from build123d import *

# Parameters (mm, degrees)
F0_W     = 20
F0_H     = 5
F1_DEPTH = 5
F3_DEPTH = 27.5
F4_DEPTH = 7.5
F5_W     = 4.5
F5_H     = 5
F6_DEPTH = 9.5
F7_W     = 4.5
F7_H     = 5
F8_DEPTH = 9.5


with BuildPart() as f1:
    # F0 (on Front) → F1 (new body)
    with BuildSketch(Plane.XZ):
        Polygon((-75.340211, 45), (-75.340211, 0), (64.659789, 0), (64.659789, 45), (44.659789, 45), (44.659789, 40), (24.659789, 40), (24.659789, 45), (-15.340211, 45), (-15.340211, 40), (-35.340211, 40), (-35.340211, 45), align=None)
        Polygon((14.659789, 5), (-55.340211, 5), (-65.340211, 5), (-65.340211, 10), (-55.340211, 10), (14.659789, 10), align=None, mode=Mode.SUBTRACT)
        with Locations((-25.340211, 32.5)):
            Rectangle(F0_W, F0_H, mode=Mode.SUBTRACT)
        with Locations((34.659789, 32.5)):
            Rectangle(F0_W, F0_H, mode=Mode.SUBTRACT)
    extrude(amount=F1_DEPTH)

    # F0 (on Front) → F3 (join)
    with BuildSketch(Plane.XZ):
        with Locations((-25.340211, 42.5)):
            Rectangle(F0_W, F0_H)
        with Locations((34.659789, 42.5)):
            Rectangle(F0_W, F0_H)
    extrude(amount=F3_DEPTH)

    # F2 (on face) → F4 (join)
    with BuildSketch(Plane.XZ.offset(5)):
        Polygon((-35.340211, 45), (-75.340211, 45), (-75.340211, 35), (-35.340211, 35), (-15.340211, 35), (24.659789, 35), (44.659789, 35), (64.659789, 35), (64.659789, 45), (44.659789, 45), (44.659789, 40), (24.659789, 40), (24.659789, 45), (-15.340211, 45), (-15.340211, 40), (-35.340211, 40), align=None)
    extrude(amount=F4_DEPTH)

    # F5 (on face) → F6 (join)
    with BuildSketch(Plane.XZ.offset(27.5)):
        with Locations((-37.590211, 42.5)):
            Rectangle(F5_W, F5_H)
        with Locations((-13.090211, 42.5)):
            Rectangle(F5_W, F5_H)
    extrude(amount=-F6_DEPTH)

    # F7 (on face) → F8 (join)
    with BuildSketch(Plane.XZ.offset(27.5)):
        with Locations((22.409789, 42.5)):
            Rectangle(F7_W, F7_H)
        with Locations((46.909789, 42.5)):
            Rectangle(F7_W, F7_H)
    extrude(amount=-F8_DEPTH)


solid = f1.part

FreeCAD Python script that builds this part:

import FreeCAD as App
import Part
import Sketcher

V = App.Vector

doc = App.newDocument("Part")
body = doc.addObject("PartDesign::Body", "Body")

sketch1 = body.newObject("Sketcher::SketchObject", "Sketch")
sketch1.AttachmentSupport = (doc.getObject("XZ_Plane"), [""])
sketch1.MapMode = "FlatFace"
sketch1.addGeometry(Part.LineSegment(V(-75.340211, 45, 0), V(-75.340211, 0, 0)), False)
sketch1.addGeometry(Part.LineSegment(V(-75.340211, 0, 0), V(64.659789, 0, 0)), False)
sketch1.addGeometry(Part.LineSegment(V(64.659789, 0, 0), V(64.659789, 45, 0)), False)
sketch1.addGeometry(Part.LineSegment(V(64.659789, 45, 0), V(44.659789, 45, 0)), False)
sketch1.addGeometry(Part.LineSegment(V(44.659789, 45, 0), V(44.659789, 40, 0)), False)
sketch1.addGeometry(Part.LineSegment(V(44.659789, 40, 0), V(24.659789, 40, 0)), False)
sketch1.addGeometry(Part.LineSegment(V(24.659789, 40, 0), V(24.659789, 45, 0)), False)
sketch1.addGeometry(Part.LineSegment(V(24.659789, 45, 0), V(-15.340211, 45, 0)), False)
sketch1.addGeometry(Part.LineSegment(V(-15.340211, 45, 0), V(-15.340211, 40, 0)), False)
sketch1.addGeometry(Part.LineSegment(V(-15.340211, 40, 0), V(-35.340211, 40, 0)), False)
sketch1.addGeometry(Part.LineSegment(V(-35.340211, 40, 0), V(-35.340211, 45, 0)), False)
sketch1.addGeometry(Part.LineSegment(V(-35.340211, 45, 0), V(-75.340211, 45, 0)), False)
sketch1.addGeometry(Part.LineSegment(V(14.659789, 10, 0), V(14.659789, 5, 0)), False)
sketch1.addGeometry(Part.LineSegment(V(14.659789, 5, 0), V(-65.340211, 5, 0)), False)
sketch1.addGeometry(Part.LineSegment(V(-65.340211, 5, 0), V(-65.340211, 10, 0)), False)
sketch1.addGeometry(Part.LineSegment(V(-65.340211, 10, 0), V(14.659789, 10, 0)), False)
sketch1.addGeometry(Part.LineSegment(V(-15.340211, 30, 0), V(-35.340211, 30, 0)), False)
sketch1.addGeometry(Part.LineSegment(V(-35.340211, 30, 0), V(-35.340211, 35, 0)), False)
sketch1.addGeometry(Part.LineSegment(V(-35.340211, 35, 0), V(-15.340211, 35, 0)), False)
sketch1.addGeometry(Part.LineSegment(V(-15.340211, 35, 0), V(-15.340211, 30, 0)), False)
sketch1.addGeometry(Part.LineSegment(V(44.659789, 30, 0), V(24.659789, 30, 0)), False)
sketch1.addGeometry(Part.LineSegment(V(24.659789, 30, 0), V(24.659789, 35, 0)), False)
sketch1.addGeometry(Part.LineSegment(V(24.659789, 35, 0), V(44.659789, 35, 0)), False)
sketch1.addGeometry(Part.LineSegment(V(44.659789, 35, 0), V(44.659789, 30, 0)), False)
sketch1.addConstraint(Sketcher.Constraint("Coincident", 0, 2, 1, 1))
sketch1.addConstraint(Sketcher.Constraint("Coincident", 1, 2, 2, 1))
sketch1.addConstraint(Sketcher.Constraint("Coincident", 2, 2, 3, 1))
sketch1.addConstraint(Sketcher.Constraint("Coincident", 3, 2, 4, 1))
sketch1.addConstraint(Sketcher.Constraint("Coincident", 4, 2, 5, 1))
sketch1.addConstraint(Sketcher.Constraint("Coincident", 5, 2, 6, 1))
sketch1.addConstraint(Sketcher.Constraint("Coincident", 6, 2, 7, 1))
sketch1.addConstraint(Sketcher.Constraint("Coincident", 7, 2, 8, 1))
sketch1.addConstraint(Sketcher.Constraint("Coincident", 8, 2, 9, 1))
sketch1.addConstraint(Sketcher.Constraint("Coincident", 9, 2, 10, 1))
sketch1.addConstraint(Sketcher.Constraint("Coincident", 10, 2, 11, 1))
sketch1.addConstraint(Sketcher.Constraint("Coincident", 11, 2, 0, 1))
sketch1.addConstraint(Sketcher.Constraint("Coincident", 12, 2, 13, 1))
sketch1.addConstraint(Sketcher.Constraint("Coincident", 13, 2, 14, 1))
sketch1.addConstraint(Sketcher.Constraint("Coincident", 14, 2, 15, 1))
sketch1.addConstraint(Sketcher.Constraint("Coincident", 15, 2, 12, 1))
sketch1.addConstraint(Sketcher.Constraint("Coincident", 16, 2, 17, 1))
sketch1.addConstraint(Sketcher.Constraint("Coincident", 17, 2, 18, 1))
sketch1.addConstraint(Sketcher.Constraint("Coincident", 18, 2, 19, 1))
sketch1.addConstraint(Sketcher.Constraint("Coincident", 19, 2, 16, 1))
sketch1.addConstraint(Sketcher.Constraint("Coincident", 20, 2, 21, 1))
sketch1.addConstraint(Sketcher.Constraint("Coincident", 21, 2, 22, 1))
sketch1.addConstraint(Sketcher.Constraint("Coincident", 22, 2, 23, 1))
sketch1.addConstraint(Sketcher.Constraint("Coincident", 23, 2, 20, 1))
sketch1.addConstraint(Sketcher.Constraint("Vertical", 0))
sketch1.addConstraint(Sketcher.Constraint("Horizontal", 1))
sketch1.addConstraint(Sketcher.Constraint("Vertical", 2))
sketch1.addConstraint(Sketcher.Constraint("Horizontal", 3))
sketch1.addConstraint(Sketcher.Constraint("Vertical", 4))
sketch1.addConstraint(Sketcher.Constraint("Horizontal", 5))
sketch1.addConstraint(Sketcher.Constraint("Vertical", 6))
sketch1.addConstraint(Sketcher.Constraint("Horizontal", 7))
sketch1.addConstraint(Sketcher.Constraint("Vertical", 8))
sketch1.addConstraint(Sketcher.Constraint("Horizontal", 9))
sketch1.addConstraint(Sketcher.Constraint("Vertical", 10))
sketch1.addConstraint(Sketcher.Constraint("Horizontal", 11))
sketch1.addConstraint(Sketcher.Constraint("Vertical", 12))
sketch1.addConstraint(Sketcher.Constraint("Horizontal", 13))
sketch1.addConstraint(Sketcher.Constraint("Vertical", 14))
sketch1.addConstraint(Sketcher.Constraint("Horizontal", 15))
sketch1.addConstraint(Sketcher.Constraint("Horizontal", 16))
sketch1.addConstraint(Sketcher.Constraint("Vertical", 17))
sketch1.addConstraint(Sketcher.Constraint("Horizontal", 18))
sketch1.addConstraint(Sketcher.Constraint("Vertical", 19))
sketch1.addConstraint(Sketcher.Constraint("Horizontal", 20))
sketch1.addConstraint(Sketcher.Constraint("Vertical", 21))
sketch1.addConstraint(Sketcher.Constraint("Horizontal", 22))
sketch1.addConstraint(Sketcher.Constraint("Vertical", 23))
sketch1.addConstraint(Sketcher.Constraint("PointOnObject", 0, 2, -1))
sketch1.addConstraint(Sketcher.Constraint("Horizontal", 3, 2, 6, 2))
sketch1.addConstraint(Sketcher.Constraint("Horizontal", 5, 2, 8, 2))
sketch1.addConstraint(Sketcher.Constraint("Horizontal", 7, 2, 10, 2))
sketch1.addConstraint(Sketcher.Constraint("Horizontal", 19, 2, 20, 2))
sketch1.addConstraint(Sketcher.Constraint("Horizontal", 18, 2, 21, 2))
sketch1.addConstraint(Sketcher.Constraint("Vertical", 10, 2, 16, 2))
sketch1.addConstraint(Sketcher.Constraint("Vertical", 8, 2, 18, 2))
sketch1.addConstraint(Sketcher.Constraint("Vertical", 6, 2, 20, 2))
sketch1.addConstraint(Sketcher.Constraint("Vertical", 4, 2, 22, 2))
sketch1.addConstraint(Sketcher.Constraint("Equal", 3, 5))
sketch1.addConstraint(Sketcher.Constraint("Equal", 5, 9))
sketch1.addConstraint(Sketcher.Constraint("Equal", 7, 11))
sketch1.addConstraint(Sketcher.Constraint("Equal", 10, 12))
sketch1.addConstraint(Sketcher.Constraint("Equal", 14, 17))
sketch1.addConstraint(Sketcher.Constraint("DistanceX", 1, 1, 1, 2, 140.0))
sketch1.addConstraint(Sketcher.Constraint("DistanceX", 3, 2, 3, 1, 20.0))
sketch1.addConstraint(Sketcher.Constraint("DistanceX", 13, 2, 13, 1, 80.0))
sketch1.addConstraint(Sketcher.Constraint("DistanceY", 0, 2, 0, 1, 45.0))
sketch1.addConstraint(Sketcher.Constraint("DistanceY", 4, 2, 4, 1, 5.0))
sketch1.addConstraint(Sketcher.Constraint("DistanceY", -1, 1, 12, 2, 5.0))
sketch1.addConstraint(Sketcher.Constraint("DistanceY", -1, 1, 16, 2, 30.0))
sketch1.addConstraint(Sketcher.Constraint("DistanceX", 12, 2, 5, 2, 10.0))
sketch1.addConstraint(Sketcher.Constraint("DistanceX", 0, 2, -1, 1, 75.340211))
pad1 = body.newObject("PartDesign::Pad", "Pad")
pad1.Profile = sketch1
pad1.Length = 5

sketch2 = body.newObject("Sketcher::SketchObject", "Sketch001")
sketch2.AttachmentSupport = (doc.getObject("XZ_Plane"), [""])
sketch2.MapMode = "FlatFace"
sketch2.addGeometry(Part.LineSegment(V(-35.340211, 45, 0), V(-35.340211, 40, 0)), False)
sketch2.addGeometry(Part.LineSegment(V(-35.340211, 40, 0), V(-15.340211, 40, 0)), False)
sketch2.addGeometry(Part.LineSegment(V(-15.340211, 40, 0), V(-15.340211, 45, 0)), False)
sketch2.addGeometry(Part.LineSegment(V(-15.340211, 45, 0), V(-35.340211, 45, 0)), False)
sketch2.addGeometry(Part.LineSegment(V(24.659789, 45, 0), V(24.659789, 40, 0)), False)
sketch2.addGeometry(Part.LineSegment(V(24.659789, 40, 0), V(44.659789, 40, 0)), False)
sketch2.addGeometry(Part.LineSegment(V(44.659789, 40, 0), V(44.659789, 45, 0)), False)
sketch2.addGeometry(Part.LineSegment(V(44.659789, 45, 0), V(24.659789, 45, 0)), False)
sketch2.addConstraint(Sketcher.Constraint("Coincident", 0, 2, 1, 1))
sketch2.addConstraint(Sketcher.Constraint("Coincident", 1, 2, 2, 1))
sketch2.addConstraint(Sketcher.Constraint("Coincident", 2, 2, 3, 1))
sketch2.addConstraint(Sketcher.Constraint("Coincident", 3, 2, 0, 1))
sketch2.addConstraint(Sketcher.Constraint("Coincident", 4, 2, 5, 1))
sketch2.addConstraint(Sketcher.Constraint("Coincident", 5, 2, 6, 1))
sketch2.addConstraint(Sketcher.Constraint("Coincident", 6, 2, 7, 1))
sketch2.addConstraint(Sketcher.Constraint("Coincident", 7, 2, 4, 1))
sketch2.addConstraint(Sketcher.Constraint("Vertical", 0))
sketch2.addConstraint(Sketcher.Constraint("Horizontal", 1))
sketch2.addConstraint(Sketcher.Constraint("Vertical", 2))
sketch2.addConstraint(Sketcher.Constraint("Horizontal", 3))
sketch2.addConstraint(Sketcher.Constraint("Vertical", 4))
sketch2.addConstraint(Sketcher.Constraint("Horizontal", 5))
sketch2.addConstraint(Sketcher.Constraint("Vertical", 6))
sketch2.addConstraint(Sketcher.Constraint("Horizontal", 7))
sketch2.addConstraint(Sketcher.Constraint("Horizontal", 1, 2, 4, 2))
sketch2.addConstraint(Sketcher.Constraint("Horizontal", 3, 2, 6, 2))
sketch2.addConstraint(Sketcher.Constraint("Equal", 3, 5))
sketch2.addConstraint(Sketcher.Constraint("DistanceX", 1, 1, 1, 2, 20.0))
sketch2.addConstraint(Sketcher.Constraint("DistanceY", 0, 2, 0, 1, 5.0))
sketch2.addConstraint(Sketcher.Constraint("DistanceY", -1, 1, 0, 2, 40.0))
sketch2.addConstraint(Sketcher.Constraint("DistanceX", 1, 2, 4, 2, 40.0))
sketch2.addConstraint(Sketcher.Constraint("DistanceX", 0, 2, -1, 1, 35.340211))
pad2 = body.newObject("PartDesign::Pad", "Pad001")
pad2.Profile = sketch2
pad2.Length = 27.5

sketch3 = body.newObject("Sketcher::SketchObject", "Sketch002")
sketch3.AttachmentSupport = (doc.getObject("XZ_Plane"), [""])
sketch3.MapMode = "FlatFace"
sketch3.AttachmentOffset = App.Placement(V(0, 0, 5), App.Rotation())
sketch3.addGeometry(Part.LineSegment(V(-35.340211, 45, 0), V(-75.340211, 45, 0)), False)
sketch3.addGeometry(Part.LineSegment(V(-75.340211, 45, 0), V(-75.340211, 35, 0)), False)
sketch3.addGeometry(Part.LineSegment(V(-75.340211, 35, 0), V(64.659789, 35, 0)), False)
sketch3.addGeometry(Part.LineSegment(V(64.659789, 35, 0), V(64.659789, 45, 0)), False)
sketch3.addGeometry(Part.LineSegment(V(64.659789, 45, 0), V(44.659789, 45, 0)), False)
sketch3.addGeometry(Part.LineSegment(V(44.659789, 45, 0), V(44.659789, 40, 0)), False)
sketch3.addGeometry(Part.LineSegment(V(44.659789, 40, 0), V(24.659789, 40, 0)), False)
sketch3.addGeometry(Part.LineSegment(V(24.659789, 40, 0), V(24.659789, 45, 0)), False)
sketch3.addGeometry(Part.LineSegment(V(24.659789, 45, 0), V(-15.340211, 45, 0)), False)
sketch3.addGeometry(Part.LineSegment(V(-15.340211, 45, 0), V(-15.340211, 40, 0)), False)
sketch3.addGeometry(Part.LineSegment(V(-15.340211, 40, 0), V(-35.340211, 40, 0)), False)
sketch3.addGeometry(Part.LineSegment(V(-35.340211, 40, 0), V(-35.340211, 45, 0)), False)
sketch3.addConstraint(Sketcher.Constraint("Coincident", 0, 2, 1, 1))
sketch3.addConstraint(Sketcher.Constraint("Coincident", 1, 2, 2, 1))
sketch3.addConstraint(Sketcher.Constraint("Coincident", 2, 2, 3, 1))
sketch3.addConstraint(Sketcher.Constraint("Coincident", 3, 2, 4, 1))
sketch3.addConstraint(Sketcher.Constraint("Coincident", 4, 2, 5, 1))
sketch3.addConstraint(Sketcher.Constraint("Coincident", 5, 2, 6, 1))
sketch3.addConstraint(Sketcher.Constraint("Coincident", 6, 2, 7, 1))
sketch3.addConstraint(Sketcher.Constraint("Coincident", 7, 2, 8, 1))
sketch3.addConstraint(Sketcher.Constraint("Coincident", 8, 2, 9, 1))
sketch3.addConstraint(Sketcher.Constraint("Coincident", 9, 2, 10, 1))
sketch3.addConstraint(Sketcher.Constraint("Coincident", 10, 2, 11, 1))
sketch3.addConstraint(Sketcher.Constraint("Coincident", 11, 2, 0, 1))
sketch3.addConstraint(Sketcher.Constraint("Horizontal", 0))
sketch3.addConstraint(Sketcher.Constraint("Vertical", 1))
sketch3.addConstraint(Sketcher.Constraint("Horizontal", 2))
sketch3.addConstraint(Sketcher.Constraint("Vertical", 3))
sketch3.addConstraint(Sketcher.Constraint("Horizontal", 4))
sketch3.addConstraint(Sketcher.Constraint("Vertical", 5))
sketch3.addConstraint(Sketcher.Constraint("Horizontal", 6))
sketch3.addConstraint(Sketcher.Constraint("Vertical", 7))
sketch3.addConstraint(Sketcher.Constraint("Horizontal", 8))
sketch3.addConstraint(Sketcher.Constraint("Vertical", 9))
sketch3.addConstraint(Sketcher.Constraint("Horizontal", 10))
sketch3.addConstraint(Sketcher.Constraint("Vertical", 11))
sketch3.addConstraint(Sketcher.Constraint("Horizontal", 0, 2, 3, 2))
sketch3.addConstraint(Sketcher.Constraint("Horizontal", 4, 2, 7, 2))
sketch3.addConstraint(Sketcher.Constraint("Horizontal", 6, 2, 9, 2))
sketch3.addConstraint(Sketcher.Constraint("Equal", 4, 6))
sketch3.addConstraint(Sketcher.Constraint("Equal", 0, 8))
sketch3.addConstraint(Sketcher.Constraint("Equal", 6, 10))
sketch3.addConstraint(Sketcher.Constraint("DistanceX", 0, 2, 0, 1, 40.0))
sketch3.addConstraint(Sketcher.Constraint("DistanceX", 2, 1, 2, 2, 140.0))
sketch3.addConstraint(Sketcher.Constraint("DistanceY", 1, 2, 1, 1, 10.0))
sketch3.addConstraint(Sketcher.Constraint("DistanceY", 5, 2, 5, 1, 5.0))
sketch3.addConstraint(Sketcher.Constraint("DistanceY", -1, 1, 0, 2, 45.0))
sketch3.addConstraint(Sketcher.Constraint("DistanceX", 0, 2, -1, 1, 75.340211))
pad3 = body.newObject("PartDesign::Pad", "Pad002")
pad3.Profile = sketch3
pad3.Length = 7.5

sketch4 = body.newObject("Sketcher::SketchObject", "Sketch003")
sketch4.AttachmentSupport = (doc.getObject("XZ_Plane"), [""])
sketch4.MapMode = "FlatFace"
sketch4.AttachmentOffset = App.Placement(V(0, 0, 27.5), App.Rotation())
sketch4.addGeometry(Part.LineSegment(V(-39.840211, 45, 0), V(-39.840211, 40, 0)), False)
sketch4.addGeometry(Part.LineSegment(V(-39.840211, 40, 0), V(-35.340211, 40, 0)), False)
sketch4.addGeometry(Part.LineSegment(V(-35.340211, 40, 0), V(-35.340211, 45, 0)), False)
sketch4.addGeometry(Part.LineSegment(V(-35.340211, 45, 0), V(-39.840211, 45, 0)), False)
sketch4.addGeometry(Part.LineSegment(V(-15.340211, 45, 0), V(-15.340211, 40, 0)), False)
sketch4.addGeometry(Part.LineSegment(V(-15.340211, 40, 0), V(-10.840211, 40, 0)), False)
sketch4.addGeometry(Part.LineSegment(V(-10.840211, 40, 0), V(-10.840211, 45, 0)), False)
sketch4.addGeometry(Part.LineSegment(V(-10.840211, 45, 0), V(-15.340211, 45, 0)), False)
sketch4.addConstraint(Sketcher.Constraint("Coincident", 0, 2, 1, 1))
sketch4.addConstraint(Sketcher.Constraint("Coincident", 1, 2, 2, 1))
sketch4.addConstraint(Sketcher.Constraint("Coincident", 2, 2, 3, 1))
sketch4.addConstraint(Sketcher.Constraint("Coincident", 3, 2, 0, 1))
sketch4.addConstraint(Sketcher.Constraint("Coincident", 4, 2, 5, 1))
sketch4.addConstraint(Sketcher.Constraint("Coincident", 5, 2, 6, 1))
sketch4.addConstraint(Sketcher.Constraint("Coincident", 6, 2, 7, 1))
sketch4.addConstraint(Sketcher.Constraint("Coincident", 7, 2, 4, 1))
sketch4.addConstraint(Sketcher.Constraint("Vertical", 0))
sketch4.addConstraint(Sketcher.Constraint("Horizontal", 1))
sketch4.addConstraint(Sketcher.Constraint("Vertical", 2))
sketch4.addConstraint(Sketcher.Constraint("Horizontal", 3))
sketch4.addConstraint(Sketcher.Constraint("Vertical", 4))
sketch4.addConstraint(Sketcher.Constraint("Horizontal", 5))
sketch4.addConstraint(Sketcher.Constraint("Vertical", 6))
sketch4.addConstraint(Sketcher.Constraint("Horizontal", 7))
sketch4.addConstraint(Sketcher.Constraint("Horizontal", 1, 2, 4, 2))
sketch4.addConstraint(Sketcher.Constraint("Horizontal", 3, 2, 6, 2))
sketch4.addConstraint(Sketcher.Constraint("Equal", 3, 5))
sketch4.addConstraint(Sketcher.Constraint("DistanceY", 0, 2, 0, 1, 5.0))
sketch4.addConstraint(Sketcher.Constraint("DistanceX", 1, 1, 1, 2, 4.5))
sketch4.addConstraint(Sketcher.Constraint("DistanceY", -1, 1, 0, 2, 40.0))
sketch4.addConstraint(Sketcher.Constraint("DistanceX", 1, 2, 4, 2, 20.0))
sketch4.addConstraint(Sketcher.Constraint("DistanceX", 0, 2, -1, 1, 39.840211))
pad4 = body.newObject("PartDesign::Pad", "Pad003")
pad4.Profile = sketch4
pad4.Length = 9.5
pad4.Reversed = True

sketch5 = body.newObject("Sketcher::SketchObject", "Sketch004")
sketch5.AttachmentSupport = (doc.getObject("XZ_Plane"), [""])
sketch5.MapMode = "FlatFace"
sketch5.AttachmentOffset = App.Placement(V(0, 0, 27.5), App.Rotation())
sketch5.addGeometry(Part.LineSegment(V(20.159789, 45, 0), V(20.159789, 40, 0)), False)
sketch5.addGeometry(Part.LineSegment(V(20.159789, 40, 0), V(24.659789, 40, 0)), False)
sketch5.addGeometry(Part.LineSegment(V(24.659789, 40, 0), V(24.659789, 45, 0)), False)
sketch5.addGeometry(Part.LineSegment(V(24.659789, 45, 0), V(20.159789, 45, 0)), False)
sketch5.addGeometry(Part.LineSegment(V(44.659789, 45, 0), V(44.659789, 40, 0)), False)
sketch5.addGeometry(Part.LineSegment(V(44.659789, 40, 0), V(49.159789, 40, 0)), False)
sketch5.addGeometry(Part.LineSegment(V(49.159789, 40, 0), V(49.159789, 45, 0)), False)
sketch5.addGeometry(Part.LineSegment(V(49.159789, 45, 0), V(44.659789, 45, 0)), False)
sketch5.addConstraint(Sketcher.Constraint("Coincident", 0, 2, 1, 1))
sketch5.addConstraint(Sketcher.Constraint("Coincident", 1, 2, 2, 1))
sketch5.addConstraint(Sketcher.Constraint("Coincident", 2, 2, 3, 1))
sketch5.addConstraint(Sketcher.Constraint("Coincident", 3, 2, 0, 1))
sketch5.addConstraint(Sketcher.Constraint("Coincident", 4, 2, 5, 1))
sketch5.addConstraint(Sketcher.Constraint("Coincident", 5, 2, 6, 1))
sketch5.addConstraint(Sketcher.Constraint("Coincident", 6, 2, 7, 1))
sketch5.addConstraint(Sketcher.Constraint("Coincident", 7, 2, 4, 1))
sketch5.addConstraint(Sketcher.Constraint("Vertical", 0))
sketch5.addConstraint(Sketcher.Constraint("Horizontal", 1))
sketch5.addConstraint(Sketcher.Constraint("Vertical", 2))
sketch5.addConstraint(Sketcher.Constraint("Horizontal", 3))
sketch5.addConstraint(Sketcher.Constraint("Vertical", 4))
sketch5.addConstraint(Sketcher.Constraint("Horizontal", 5))
sketch5.addConstraint(Sketcher.Constraint("Vertical", 6))
sketch5.addConstraint(Sketcher.Constraint("Horizontal", 7))
sketch5.addConstraint(Sketcher.Constraint("Horizontal", 1, 2, 4, 2))
sketch5.addConstraint(Sketcher.Constraint("Horizontal", 3, 2, 6, 2))
sketch5.addConstraint(Sketcher.Constraint("Equal", 3, 5))
sketch5.addConstraint(Sketcher.Constraint("DistanceY", 0, 2, 0, 1, 5.0))
sketch5.addConstraint(Sketcher.Constraint("DistanceX", 1, 1, 1, 2, 4.5))
sketch5.addConstraint(Sketcher.Constraint("DistanceY", -1, 1, 0, 2, 40.0))
sketch5.addConstraint(Sketcher.Constraint("DistanceX", 1, 2, 4, 2, 20.0))
sketch5.addConstraint(Sketcher.Constraint("DistanceX", -1, 1, 0, 2, 20.159789))
pad5 = body.newObject("PartDesign::Pad", "Pad004")
pad5.Profile = sketch5
pad5.Length = 9.5
pad5.Reversed = True

doc.recompute()
